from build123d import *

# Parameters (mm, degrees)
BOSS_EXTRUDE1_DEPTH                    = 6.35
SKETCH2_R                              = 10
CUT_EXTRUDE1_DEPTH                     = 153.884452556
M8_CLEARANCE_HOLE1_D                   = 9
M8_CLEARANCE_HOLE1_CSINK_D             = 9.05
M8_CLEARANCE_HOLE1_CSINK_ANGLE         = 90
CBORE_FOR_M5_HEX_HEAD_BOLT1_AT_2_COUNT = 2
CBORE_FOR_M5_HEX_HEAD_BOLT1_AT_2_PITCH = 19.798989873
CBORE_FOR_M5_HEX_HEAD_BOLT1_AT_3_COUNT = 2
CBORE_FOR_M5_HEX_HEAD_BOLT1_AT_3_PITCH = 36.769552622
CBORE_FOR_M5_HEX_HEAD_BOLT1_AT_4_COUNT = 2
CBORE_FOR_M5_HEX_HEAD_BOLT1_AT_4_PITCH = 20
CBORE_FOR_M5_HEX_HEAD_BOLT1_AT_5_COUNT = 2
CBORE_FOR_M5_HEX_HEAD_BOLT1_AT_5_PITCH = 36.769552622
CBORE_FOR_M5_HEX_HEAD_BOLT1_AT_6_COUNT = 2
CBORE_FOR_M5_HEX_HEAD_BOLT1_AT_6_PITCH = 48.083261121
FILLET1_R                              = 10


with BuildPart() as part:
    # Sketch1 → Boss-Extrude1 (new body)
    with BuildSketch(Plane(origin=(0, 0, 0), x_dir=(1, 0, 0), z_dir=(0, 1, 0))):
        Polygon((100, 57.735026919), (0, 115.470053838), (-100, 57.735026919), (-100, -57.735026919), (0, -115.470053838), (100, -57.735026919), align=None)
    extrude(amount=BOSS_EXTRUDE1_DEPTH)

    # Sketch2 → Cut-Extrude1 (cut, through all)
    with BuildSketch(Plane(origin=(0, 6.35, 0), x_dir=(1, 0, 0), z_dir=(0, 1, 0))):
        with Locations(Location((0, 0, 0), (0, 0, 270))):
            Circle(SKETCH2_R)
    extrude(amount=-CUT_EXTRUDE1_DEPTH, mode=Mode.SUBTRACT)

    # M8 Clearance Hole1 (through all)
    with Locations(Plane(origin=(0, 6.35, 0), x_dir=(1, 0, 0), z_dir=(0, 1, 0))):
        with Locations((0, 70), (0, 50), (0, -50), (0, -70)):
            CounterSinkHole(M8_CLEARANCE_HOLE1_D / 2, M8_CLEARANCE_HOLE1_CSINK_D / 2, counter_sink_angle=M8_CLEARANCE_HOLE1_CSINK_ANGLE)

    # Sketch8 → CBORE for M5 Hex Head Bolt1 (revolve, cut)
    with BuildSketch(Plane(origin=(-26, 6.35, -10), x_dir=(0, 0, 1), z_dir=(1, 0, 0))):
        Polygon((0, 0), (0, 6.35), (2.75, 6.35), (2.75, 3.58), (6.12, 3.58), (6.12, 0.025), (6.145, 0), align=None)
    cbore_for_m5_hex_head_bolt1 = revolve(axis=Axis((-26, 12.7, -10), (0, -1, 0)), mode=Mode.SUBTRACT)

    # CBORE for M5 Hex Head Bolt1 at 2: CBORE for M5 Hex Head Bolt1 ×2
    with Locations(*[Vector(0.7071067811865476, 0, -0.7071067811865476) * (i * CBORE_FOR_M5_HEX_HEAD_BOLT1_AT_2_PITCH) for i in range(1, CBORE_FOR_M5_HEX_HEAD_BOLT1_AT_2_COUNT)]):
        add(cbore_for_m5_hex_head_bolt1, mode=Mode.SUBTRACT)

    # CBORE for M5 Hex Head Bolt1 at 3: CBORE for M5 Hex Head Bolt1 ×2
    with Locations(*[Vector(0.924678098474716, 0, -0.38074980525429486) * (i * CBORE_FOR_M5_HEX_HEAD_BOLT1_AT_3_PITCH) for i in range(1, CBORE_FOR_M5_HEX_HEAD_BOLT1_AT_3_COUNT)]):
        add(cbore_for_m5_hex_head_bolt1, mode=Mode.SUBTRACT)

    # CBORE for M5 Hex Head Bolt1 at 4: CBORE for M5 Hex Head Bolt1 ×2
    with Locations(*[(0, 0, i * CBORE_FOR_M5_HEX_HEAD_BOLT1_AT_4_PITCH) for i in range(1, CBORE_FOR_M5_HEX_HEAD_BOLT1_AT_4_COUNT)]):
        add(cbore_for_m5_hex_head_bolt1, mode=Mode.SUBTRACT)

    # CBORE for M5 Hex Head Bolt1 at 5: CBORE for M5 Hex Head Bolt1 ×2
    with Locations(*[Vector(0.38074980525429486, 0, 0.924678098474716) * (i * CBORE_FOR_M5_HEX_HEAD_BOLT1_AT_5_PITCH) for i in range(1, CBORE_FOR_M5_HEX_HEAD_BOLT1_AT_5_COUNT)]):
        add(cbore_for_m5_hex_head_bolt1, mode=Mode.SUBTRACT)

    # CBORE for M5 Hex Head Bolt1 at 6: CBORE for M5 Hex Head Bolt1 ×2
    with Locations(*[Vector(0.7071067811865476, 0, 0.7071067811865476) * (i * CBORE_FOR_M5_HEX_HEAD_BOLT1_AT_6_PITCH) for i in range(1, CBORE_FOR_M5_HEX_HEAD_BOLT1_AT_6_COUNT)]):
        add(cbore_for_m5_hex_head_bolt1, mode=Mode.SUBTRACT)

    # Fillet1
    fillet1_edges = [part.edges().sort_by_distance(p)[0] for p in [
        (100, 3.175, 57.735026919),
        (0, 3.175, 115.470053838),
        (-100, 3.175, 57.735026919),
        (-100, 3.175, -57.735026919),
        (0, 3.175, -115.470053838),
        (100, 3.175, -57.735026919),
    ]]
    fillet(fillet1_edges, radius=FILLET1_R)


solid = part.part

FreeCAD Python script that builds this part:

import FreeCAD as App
import Part
import Sketcher

V = App.Vector
Q = App.Units.Quantity


def edges_at(feature, points):
    """Names of the edges that pass closest to the given points."""
    edges = feature.Shape.Edges
    near = lambda p: min(range(len(edges)), key=lambda i: edges[i].distToShape(Part.Vertex(*p))[0])
    return sorted({f"Edge{near(p) + 1}" for p in points})

doc = App.newDocument("Part")
body = doc.addObject("PartDesign::Body", "Body")

# Sketch on XZ plane
sketch1 = body.newObject("Sketcher::SketchObject", "Sketch")
sketch1.AttachmentSupport = (doc.getObject("XZ_Plane"), [""])
sketch1.MapMode = "FlatFace"
sketch1.addGeometry(Part.LineSegment(V(100, -57.735027, 0), V(0, -115.470054, 0)), False)
sketch1.addGeometry(Part.LineSegment(V(0, -115.470054, 0), V(-100, -57.735027, 0)), False)
sketch1.addGeometry(Part.LineSegment(V(-100, -57.735027, 0), V(-100, 57.735027, 0)), False)
sketch1.addGeometry(Part.LineSegment(V(-100, 57.735027, 0), V(0, 115.470054, 0)), False)
sketch1.addGeometry(Part.LineSegment(V(0, 115.470054, 0), V(100, 57.735027, 0)), False)
sketch1.addGeometry(Part.LineSegment(V(100, 57.735027, 0), V(100, -57.735027, 0)), False)
sketch1.addConstraint(Sketcher.Constraint("Coincident", 0, 2, 1, 1))
sketch1.addConstraint(Sketcher.Constraint("Coincident", 1, 2, 2, 1))
sketch1.addConstraint(Sketcher.Constraint("Coincident", 2, 2, 3, 1))
sketch1.addConstraint(Sketcher.Constraint("Coincident", 3, 2, 4, 1))
sketch1.addConstraint(Sketcher.Constraint("Coincident", 4, 2, 5, 1))
sketch1.addConstraint(Sketcher.Constraint("Coincident", 5, 2, 0, 1))
sketch1.addConstraint(Sketcher.Constraint("Vertical", 2))
sketch1.addConstraint(Sketcher.Constraint("Vertical", 5))
sketch1.addConstraint(Sketcher.Constraint("Symmetric", 0, 2, 3, 2, -1, 1))
sketch1.addConstraint(Sketcher.Constraint("Symmetric", 1, 2, 4, 2, -1, 1))
sketch1.addConstraint(Sketcher.Constraint("PointOnObject", 0, 2, -2))
sketch1.addConstraint(Sketcher.Constraint("Parallel", 0, 3))
sketch1.addConstraint(Sketcher.Constraint("Horizontal", 2, 2, 4, 2))
sketch1.addConstraint(Sketcher.Constraint("Angle", 0, Q("-150 deg")))
sketch1.addConstraint(Sketcher.Constraint("DistanceX", 1, 2, -1, 1, 100.0))
sketch1.addConstraint(Sketcher.Constraint("DistanceY", 2, 1, 2, 2, 115.470054))
pad1 = body.newObject("PartDesign::Pad", "Pad")
pad1.Profile = sketch1
pad1.Length = 6.35
pad1.Reversed = True

# Sketch on XZ plane
sketch2 = body.newObject("Sketcher::SketchObject", "Sketch001")
sketch2.AttachmentSupport = (doc.getObject("XZ_Plane"), [""])
sketch2.MapMode = "FlatFace"
sketch2.AttachmentOffset = App.Placement(V(0, 0, -6.35), App.Rotation())
sketch2.addGeometry(Part.Circle(V(0, 0, 0), V(0, 0, 1), 10), False)
sketch2.addConstraint(Sketcher.Constraint("Coincident", 0, 3, -1, 1))
sketch2.addConstraint(Sketcher.Constraint("Diameter", 0, 20.0))
pocket1 = body.newObject("PartDesign::Pocket", "Pocket")
pocket1.Profile = sketch2
pocket1.Type = "ThroughAll"
pocket1.Reversed = True

# Sketch on XZ plane
sketch3 = body.newObject("Sketcher::SketchObject", "Sketch002")
sketch3.AttachmentSupport = (doc.getObject("XZ_Plane"), [""])
sketch3.MapMode = "FlatFace"
sketch3.AttachmentOffset = App.Placement(V(0, 0, -6.35), App.Rotation())
sketch3.addGeometry(Part.Circle(V(0, -70, 0), V(0, 0, 1), 4.5), False)
sketch3.addGeometry(Part.Circle(V(0, -50, 0), V(0, 0, 1), 4.5), False)
sketch3.addGeometry(Part.Circle(V(0, 50, 0), V(0, 0, 1), 4.5), False)
sketch3.addGeometry(Part.Circle(V(0, 70, 0), V(0, 0, 1), 4.5), False)
sketch3.addConstraint(Sketcher.Constraint("Equal", 0, 1))
sketch3.addConstraint(Sketcher.Constraint("Equal", 1, 2))
sketch3.addConstraint(Sketcher.Constraint("Equal", 2, 3))
sketch3.addConstraint(Sketcher.Constraint("Symmetric", 1, 3, 2, 3, -1, 1))
sketch3.addConstraint(Sketcher.Constraint("Symmetric", 0, 3, 3, 3, -1, 1))
sketch3.addConstraint(Sketcher.Constraint("PointOnObject", 0, 3, -2))
sketch3.addConstraint(Sketcher.Constraint("PointOnObject", 1, 3, -2))
sketch3.addConstraint(Sketcher.Constraint("Diameter", 0, 9.0))
sketch3.addConstraint(Sketcher.Constraint("DistanceY", 0, 3, -1, 1, 70.0))
sketch3.addConstraint(Sketcher.Constraint("DistanceY", 1, 3, -1, 1, 50.0))
doc.recompute()
hole = body.newObject("PartDesign::Hole", "Hole")
hole.Profile = sketch3
hole.ThreadType = "None"
hole.Diameter = 9
hole.DepthType = "ThroughAll"
hole.HoleCutType = "Countersink"
hole.HoleCutDiameter = 9.05
hole.HoleCutCountersinkAngle = 90
hole.Reversed = True

# Sketch on YZ plane
sketch4 = body.newObject("Sketcher::SketchObject", "Sketch003")
sketch4.AttachmentSupport = (doc.getObject("YZ_Plane"), [""])
sketch4.MapMode = "FlatFace"
sketch4.AttachmentOffset = App.Placement(V(0, 0, -26), App.Rotation())
sketch4.addGeometry(Part.LineSegment(V(0, -10, 0), V(6.35, -10, 0)), False)
sketch4.addGeometry(Part.LineSegment(V(6.35, -10, 0), V(6.35, -3.855, 0)), False)
sketch4.addGeometry(Part.LineSegment(V(6.35, -3.855, 0), V(6.325, -3.88, 0)), False)
sketch4.addGeometry(Part.LineSegment(V(6.325, -3.88, 0), V(2.77, -3.88, 0)), False)
sketch4.addGeometry(Part.LineSegment(V(2.77, -3.88, 0), V(2.77, -7.25, 0)), False)
sketch4.addGeometry(Part.LineSegment(V(2.77, -7.25, 0), V(0, -7.25, 0)), False)
sketch4.addGeometry(Part.LineSegment(V(0, -7.25, 0), V(0, -10, 0)), False)
sketch4.addGeometry(Part.LineSegment(V(6.35, -10, 0), V(0, -10, 0)), True)  # axis
sketch4.addConstraint(Sketcher.Constraint("Coincident", 0, 2, 1, 1))
sketch4.addConstraint(Sketcher.Constraint("Coincident", 1, 2, 2, 1))
sketch4.addConstraint(Sketcher.Constraint("Coincident", 2, 2, 3, 1))
sketch4.addConstraint(Sketcher.Constraint("Coincident", 3, 2, 4, 1))
sketch4.addConstraint(Sketcher.Constraint("Coincident", 4, 2, 5, 1))
sketch4.addConstraint(Sketcher.Constraint("Coincident", 5, 2, 6, 1))
sketch4.addConstraint(Sketcher.Constraint("Coincident", 6, 2, 0, 1))
sketch4.addConstraint(Sketcher.Constraint("Horizontal", 0))
sketch4.addConstraint(Sketcher.Constraint("Vertical", 1))
sketch4.addConstraint(Sketcher.Constraint("Horizontal", 3))
sketch4.addConstraint(Sketcher.Constraint("Vertical", 4))
sketch4.addConstraint(Sketcher.Constraint("Horizontal", 5))
sketch4.addConstraint(Sketcher.Constraint("Vertical", 6))
sketch4.addConstraint(Sketcher.Constraint("Horizontal", 7))
sketch4.addConstraint(Sketcher.Constraint("Coincident", 7, 1, 0, 2))
sketch4.addConstraint(Sketcher.Constraint("PointOnObject", 5, 2, -2))
sketch4.addConstraint(Sketcher.Constraint("PointOnObject", 7, 2, -2))
sketch4.addConstraint(Sketcher.Constraint("Angle", 2, Q("-135 deg")))
sketch4.addConstraint(Sketcher.Constraint("DistanceY", 0, 2, -1, 1, 10.0))
sketch4.addConstraint(Sketcher.Constraint("DistanceX", 0, 1, 0, 2, 6.35))
sketch4.addConstraint(Sketcher.Constraint("DistanceX", 5, 2, 5, 1, 2.77))
sketch4.addConstraint(Sketcher.Constraint("DistanceY", 4, 2, 4, 1, 3.37))
sketch4.addConstraint(Sketcher.Constraint("DistanceY", 6, 2, 6, 1, 2.75))
sketch4.addConstraint(Sketcher.Constraint("DistanceX", 3, 2, 3, 1, 3.555))
groove = body.newObject("PartDesign::Groove", "Groove")
groove.Profile = sketch4
groove.ReferenceAxis = (sketch4, ["Axis0"])
groove.Angle = 360
doc.recompute()

datumline = body.newObject("PartDesign::Line", "DatumLine")
datumline.Placement = App.Placement(V(0, 0, 0), App.Rotation(V(0, 0, 1), V(0.707106781, 0, -0.707106781)))
linearpattern = body.newObject("PartDesign::LinearPattern", "LinearPattern")
linearpattern.Originals = [groove]
linearpattern.Direction = (datumline, [""])
linearpattern.Mode = "offset"
linearpattern.Offset = 19.79899
linearpattern.Occurrences = 2
body.Tip = linearpattern
doc.recompute()

datumline2 = body.newObject("PartDesign::Line", "DatumLine001")
datumline2.Placement = App.Placement(V(0, 0, 0), App.Rotation(V(0, 0, 1), V(0.924678098, 0, -0.380749805)))
linearpattern2 = body.newObject("PartDesign::LinearPattern", "LinearPattern001")
linearpattern2.Originals = [groove]
linearpattern2.Direction = (datumline2, [""])
linearpattern2.Mode = "offset"
linearpattern2.Offset = 36.769553
linearpattern2.Occurrences = 2
body.Tip = linearpattern2
doc.recompute()

linearpattern3 = body.newObject("PartDesign::LinearPattern", "LinearPattern002")
linearpattern3.Originals = [groove]
linearpattern3.Direction = (doc.getObject("Z_Axis"), [""])
linearpattern3.Mode = "offset"
linearpattern3.Offset = 20
linearpattern3.Occurrences = 2
body.Tip = linearpattern3
doc.recompute()

datumline3 = body.newObject("PartDesign::Line", "DatumLine002")
datumline3.Placement = App.Placement(V(0, 0, 0), App.Rotation(V(0, 0, 1), V(0.380749805, 0, 0.924678098)))
linearpattern4 = body.newObject("PartDesign::LinearPattern", "LinearPattern003")
linearpattern4.Originals = [groove]
linearpattern4.Direction = (datumline3, [""])
linearpattern4.Mode = "offset"
linearpattern4.Offset = 36.769553
linearpattern4.Occurrences = 2
body.Tip = linearpattern4
doc.recompute()

datumline4 = body.newObject("PartDesign::Line", "DatumLine003")
datumline4.Placement = App.Placement(V(0, 0, 0), App.Rotation(V(0, 0, 1), V(0.707106781, 0, 0.707106781)))
linearpattern5 = body.newObject("PartDesign::LinearPattern", "LinearPattern004")
linearpattern5.Originals = [groove]
linearpattern5.Direction = (datumline4, [""])
linearpattern5.Mode = "offset"
linearpattern5.Offset = 48.083261
linearpattern5.Occurrences = 2
body.Tip = linearpattern5
doc.recompute()

fillet = body.newObject("PartDesign::Fillet", "Fillet")
fillet.Base = (linearpattern5, edges_at(linearpattern5, [
    (100, 3.175, 57.735),
    (0, 3.175, 115.47),
    (-100, 3.175, 57.735),
    (-100, 3.175, -57.735),
    (0, 3.175, -115.47),
    (100, 3.175, -57.735),
]))
fillet.Radius = 10

doc.recompute()
